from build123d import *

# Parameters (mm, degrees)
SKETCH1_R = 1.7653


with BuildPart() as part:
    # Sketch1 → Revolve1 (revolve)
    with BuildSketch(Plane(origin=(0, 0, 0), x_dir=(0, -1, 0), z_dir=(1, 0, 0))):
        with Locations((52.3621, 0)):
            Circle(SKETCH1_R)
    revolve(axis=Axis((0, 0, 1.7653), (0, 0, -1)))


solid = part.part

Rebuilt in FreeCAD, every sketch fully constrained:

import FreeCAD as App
import Part
import Sketcher
Q = App.Units.Quantity

doc = App.newDocument("Part")
body = doc.addObject("PartDesign::Body", "Body")

# Sketch on YZ plane
sketch1 = body.newObject("Sketcher::SketchObject", "Sketch")
sketch1.AttachmentSupport = (doc.getObject("YZ_Plane"), [""])
sketch1.MapMode = "FlatFace"
sketch1.addGeometry(Part.Circle(App.Vector(-52.3621, 0, 0), App.Vector(0, 0, 1), 1.7653), False)
sketch1.addConstraint(Sketcher.Constraint("PointOnObject", 0, 3, -1))
sketch1.addConstraint(Sketcher.Constraint("Diameter", 0, Q("0.139 in")))
sketch1.addConstraint(Sketcher.Constraint("DistanceX", 0, 3, -1, 1, Q("2.0615 in")))
revolution = body.newObject("PartDesign::Revolution", "Revolution")
revolution.Profile = sketch1
revolution.ReferenceAxis = (sketch1, ["V_Axis"])
revolution.Angle = 360

doc.recompute()
